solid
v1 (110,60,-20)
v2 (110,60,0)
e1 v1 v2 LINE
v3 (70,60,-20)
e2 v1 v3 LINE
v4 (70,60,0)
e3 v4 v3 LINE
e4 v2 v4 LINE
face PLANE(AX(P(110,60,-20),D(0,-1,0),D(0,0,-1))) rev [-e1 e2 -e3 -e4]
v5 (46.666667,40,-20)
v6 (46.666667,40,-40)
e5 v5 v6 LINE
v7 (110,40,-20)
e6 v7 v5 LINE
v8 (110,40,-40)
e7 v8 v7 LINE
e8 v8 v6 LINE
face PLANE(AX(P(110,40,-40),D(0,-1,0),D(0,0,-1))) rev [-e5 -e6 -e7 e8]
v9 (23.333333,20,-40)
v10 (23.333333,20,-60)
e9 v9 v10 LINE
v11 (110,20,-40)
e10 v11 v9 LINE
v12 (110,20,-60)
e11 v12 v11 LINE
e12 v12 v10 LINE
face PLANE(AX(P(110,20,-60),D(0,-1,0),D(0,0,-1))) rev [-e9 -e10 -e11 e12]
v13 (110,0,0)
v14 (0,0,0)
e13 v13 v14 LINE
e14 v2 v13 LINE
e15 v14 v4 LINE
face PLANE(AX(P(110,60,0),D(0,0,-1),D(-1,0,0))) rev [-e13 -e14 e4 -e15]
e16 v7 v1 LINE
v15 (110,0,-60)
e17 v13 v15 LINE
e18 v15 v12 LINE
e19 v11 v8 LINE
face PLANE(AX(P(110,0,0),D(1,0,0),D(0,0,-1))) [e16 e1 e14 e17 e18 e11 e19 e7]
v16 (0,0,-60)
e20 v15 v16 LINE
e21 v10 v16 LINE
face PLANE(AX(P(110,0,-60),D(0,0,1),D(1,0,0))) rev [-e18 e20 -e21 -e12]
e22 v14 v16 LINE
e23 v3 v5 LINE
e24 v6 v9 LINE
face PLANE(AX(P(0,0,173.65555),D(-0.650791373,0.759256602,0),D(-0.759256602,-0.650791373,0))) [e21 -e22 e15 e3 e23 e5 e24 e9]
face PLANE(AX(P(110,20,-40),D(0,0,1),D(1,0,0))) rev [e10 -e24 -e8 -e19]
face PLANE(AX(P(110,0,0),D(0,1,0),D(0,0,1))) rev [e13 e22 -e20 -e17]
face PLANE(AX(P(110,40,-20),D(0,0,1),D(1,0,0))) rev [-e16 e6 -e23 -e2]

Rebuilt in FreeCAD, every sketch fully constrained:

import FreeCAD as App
import Part
import Sketcher

V = App.Vector

doc = App.newDocument("Part")
params = doc.addObject("Spreadsheet::Sheet", "Params")
for row, (alias, value) in enumerate([
    ("sketch1_width", "20 mm"),
    ("pad1_length", "110 mm"),
], start=1):
    params.set(f"A{row}", alias)
    params.set(f"B{row}", "=" + value)
    params.setAlias(f"B{row}", alias)

body = doc.addObject("PartDesign::Body", "Body")

# Sketch on YZ plane
sketch1 = body.newObject("Sketcher::SketchObject", "Sketch")
sketch1.AttachmentSupport = (doc.getObject("YZ_Plane"), [""])
sketch1.MapMode = "FlatFace"
sketch1.addGeometry(Part.LineSegment(V(0, 0, 0), V(0, -60, 0)), False)
sketch1.addGeometry(Part.LineSegment(V(0, -60, 0), V(20, -60, 0)), False)
sketch1.addGeometry(Part.LineSegment(V(20, -60, 0), V(20, -40, 0)), False)
sketch1.addGeometry(Part.LineSegment(V(20, -40, 0), V(40, -40, 0)), False)
sketch1.addGeometry(Part.LineSegment(V(40, -40, 0), V(40, -20, 0)), False)
sketch1.addGeometry(Part.LineSegment(V(40, -20, 0), V(60, -20, 0)), False)
sketch1.addGeometry(Part.LineSegment(V(60, -20, 0), V(60, 0, 0)), False)
sketch1.addGeometry(Part.LineSegment(V(60, 0, 0), V(0, 0, 0)), False)
sketch1.addConstraint(Sketcher.Constraint("Coincident", 0, 2, 1, 1))
sketch1.addConstraint(Sketcher.Constraint("Coincident", 1, 2, 2, 1))
sketch1.addConstraint(Sketcher.Constraint("Coincident", 2, 2, 3, 1))
sketch1.addConstraint(Sketcher.Constraint("Coincident", 3, 2, 4, 1))
sketch1.addConstraint(Sketcher.Constraint("Coincident", 4, 2, 5, 1))
sketch1.addConstraint(Sketcher.Constraint("Coincident", 5, 2, 6, 1))
sketch1.addConstraint(Sketcher.Constraint("Coincident", 6, 2, 7, 1))
sketch1.addConstraint(Sketcher.Constraint("Coincident", 7, 2, 0, 1))
sketch1.addConstraint(Sketcher.Constraint("Vertical", 0))
sketch1.addConstraint(Sketcher.Constraint("Horizontal", 1))
sketch1.addConstraint(Sketcher.Constraint("Vertical", 2))
sketch1.addConstraint(Sketcher.Constraint("Horizontal", 3))
sketch1.addConstraint(Sketcher.Constraint("Vertical", 4))
sketch1.addConstraint(Sketcher.Constraint("Horizontal", 5))
sketch1.addConstraint(Sketcher.Constraint("Vertical", 6))
sketch1.addConstraint(Sketcher.Constraint("Horizontal", 7))
sketch1.addConstraint(Sketcher.Constraint("Coincident", 7, 2, -1, 1))
sketch1.addConstraint(Sketcher.Constraint("Equal", 1, 3))
sketch1.addConstraint(Sketcher.Constraint("Equal", 3, 5))
sketch1.addConstraint(Sketcher.Constraint("Equal", 7, 0))
sketch1.addConstraint(Sketcher.Constraint("Equal", 5, 2))
sketch1.addConstraint(Sketcher.Constraint("Equal", 2, 4))
sketch1.addConstraint(Sketcher.Constraint("DistanceX", 1, 1, 1, 2, 20.0))
sketch1.setExpression("Constraints[22]", "Params.sketch1_width")
pad1 = body.newObject("PartDesign::Pad", "Pad")
pad1.Profile = sketch1
pad1.setExpression("Length", "Params.pad1_length")

# Sketch on XY plane
sketch2 = body.newObject("Sketcher::SketchObject", "Sketch001")
sketch2.AttachmentSupport = (doc.getObject("XY_Plane"), [""])
sketch2.MapMode = "FlatFace"
sketch2.addGeometry(Part.LineSegment(V(-198, -170, 0), V(268, 230, 0)), False)
sketch2.addGeometry(Part.LineSegment(V(268, 230, 0), V(-71, 625, 0)), False)
sketch2.addGeometry(Part.LineSegment(V(-71, 625, 0), V(-537, 226, 0)), False)
sketch2.addGeometry(Part.LineSegment(V(-537, 226, 0), V(-198, -170, 0)), False)
sketch2.addConstraint(Sketcher.Constraint("Coincident", 0, 2, 1, 1))
sketch2.addConstraint(Sketcher.Constraint("Coincident", 1, 2, 2, 1))
sketch2.addConstraint(Sketcher.Constraint("Coincident", 2, 2, 3, 1))
sketch2.addConstraint(Sketcher.Constraint("Coincident", 3, 2, 0, 1))
sketch2.addConstraint(Sketcher.Constraint("Perpendicular", 0, 1))
sketch2.addConstraint(Sketcher.Constraint("Perpendicular", 1, 2))
sketch2.addConstraint(Sketcher.Constraint("Perpendicular", 2, 3))
sketch2.addConstraint(Sketcher.Constraint("Distance", 0, 613.394008))
sketch2.addConstraint(Sketcher.Constraint("DistanceX", 1, 2, 0, 2, 339.191529))
sketch2.addConstraint(Sketcher.Constraint("DistanceY", 0, 2, 1, 2, 395.72345))
sketch2.addConstraint(Sketcher.Constraint("DistanceX", -1, 1, 0, 2, 267.861725))
sketch2.addConstraint(Sketcher.Constraint("DistanceY", -1, 1, 0, 2, 229.595764))
pocket1 = body.newObject("PartDesign::Pocket", "Pocket")
pocket1.Profile = sketch2
pocket1.Type = "ThroughAll"
pocket1.Midplane = True

doc.recompute()
